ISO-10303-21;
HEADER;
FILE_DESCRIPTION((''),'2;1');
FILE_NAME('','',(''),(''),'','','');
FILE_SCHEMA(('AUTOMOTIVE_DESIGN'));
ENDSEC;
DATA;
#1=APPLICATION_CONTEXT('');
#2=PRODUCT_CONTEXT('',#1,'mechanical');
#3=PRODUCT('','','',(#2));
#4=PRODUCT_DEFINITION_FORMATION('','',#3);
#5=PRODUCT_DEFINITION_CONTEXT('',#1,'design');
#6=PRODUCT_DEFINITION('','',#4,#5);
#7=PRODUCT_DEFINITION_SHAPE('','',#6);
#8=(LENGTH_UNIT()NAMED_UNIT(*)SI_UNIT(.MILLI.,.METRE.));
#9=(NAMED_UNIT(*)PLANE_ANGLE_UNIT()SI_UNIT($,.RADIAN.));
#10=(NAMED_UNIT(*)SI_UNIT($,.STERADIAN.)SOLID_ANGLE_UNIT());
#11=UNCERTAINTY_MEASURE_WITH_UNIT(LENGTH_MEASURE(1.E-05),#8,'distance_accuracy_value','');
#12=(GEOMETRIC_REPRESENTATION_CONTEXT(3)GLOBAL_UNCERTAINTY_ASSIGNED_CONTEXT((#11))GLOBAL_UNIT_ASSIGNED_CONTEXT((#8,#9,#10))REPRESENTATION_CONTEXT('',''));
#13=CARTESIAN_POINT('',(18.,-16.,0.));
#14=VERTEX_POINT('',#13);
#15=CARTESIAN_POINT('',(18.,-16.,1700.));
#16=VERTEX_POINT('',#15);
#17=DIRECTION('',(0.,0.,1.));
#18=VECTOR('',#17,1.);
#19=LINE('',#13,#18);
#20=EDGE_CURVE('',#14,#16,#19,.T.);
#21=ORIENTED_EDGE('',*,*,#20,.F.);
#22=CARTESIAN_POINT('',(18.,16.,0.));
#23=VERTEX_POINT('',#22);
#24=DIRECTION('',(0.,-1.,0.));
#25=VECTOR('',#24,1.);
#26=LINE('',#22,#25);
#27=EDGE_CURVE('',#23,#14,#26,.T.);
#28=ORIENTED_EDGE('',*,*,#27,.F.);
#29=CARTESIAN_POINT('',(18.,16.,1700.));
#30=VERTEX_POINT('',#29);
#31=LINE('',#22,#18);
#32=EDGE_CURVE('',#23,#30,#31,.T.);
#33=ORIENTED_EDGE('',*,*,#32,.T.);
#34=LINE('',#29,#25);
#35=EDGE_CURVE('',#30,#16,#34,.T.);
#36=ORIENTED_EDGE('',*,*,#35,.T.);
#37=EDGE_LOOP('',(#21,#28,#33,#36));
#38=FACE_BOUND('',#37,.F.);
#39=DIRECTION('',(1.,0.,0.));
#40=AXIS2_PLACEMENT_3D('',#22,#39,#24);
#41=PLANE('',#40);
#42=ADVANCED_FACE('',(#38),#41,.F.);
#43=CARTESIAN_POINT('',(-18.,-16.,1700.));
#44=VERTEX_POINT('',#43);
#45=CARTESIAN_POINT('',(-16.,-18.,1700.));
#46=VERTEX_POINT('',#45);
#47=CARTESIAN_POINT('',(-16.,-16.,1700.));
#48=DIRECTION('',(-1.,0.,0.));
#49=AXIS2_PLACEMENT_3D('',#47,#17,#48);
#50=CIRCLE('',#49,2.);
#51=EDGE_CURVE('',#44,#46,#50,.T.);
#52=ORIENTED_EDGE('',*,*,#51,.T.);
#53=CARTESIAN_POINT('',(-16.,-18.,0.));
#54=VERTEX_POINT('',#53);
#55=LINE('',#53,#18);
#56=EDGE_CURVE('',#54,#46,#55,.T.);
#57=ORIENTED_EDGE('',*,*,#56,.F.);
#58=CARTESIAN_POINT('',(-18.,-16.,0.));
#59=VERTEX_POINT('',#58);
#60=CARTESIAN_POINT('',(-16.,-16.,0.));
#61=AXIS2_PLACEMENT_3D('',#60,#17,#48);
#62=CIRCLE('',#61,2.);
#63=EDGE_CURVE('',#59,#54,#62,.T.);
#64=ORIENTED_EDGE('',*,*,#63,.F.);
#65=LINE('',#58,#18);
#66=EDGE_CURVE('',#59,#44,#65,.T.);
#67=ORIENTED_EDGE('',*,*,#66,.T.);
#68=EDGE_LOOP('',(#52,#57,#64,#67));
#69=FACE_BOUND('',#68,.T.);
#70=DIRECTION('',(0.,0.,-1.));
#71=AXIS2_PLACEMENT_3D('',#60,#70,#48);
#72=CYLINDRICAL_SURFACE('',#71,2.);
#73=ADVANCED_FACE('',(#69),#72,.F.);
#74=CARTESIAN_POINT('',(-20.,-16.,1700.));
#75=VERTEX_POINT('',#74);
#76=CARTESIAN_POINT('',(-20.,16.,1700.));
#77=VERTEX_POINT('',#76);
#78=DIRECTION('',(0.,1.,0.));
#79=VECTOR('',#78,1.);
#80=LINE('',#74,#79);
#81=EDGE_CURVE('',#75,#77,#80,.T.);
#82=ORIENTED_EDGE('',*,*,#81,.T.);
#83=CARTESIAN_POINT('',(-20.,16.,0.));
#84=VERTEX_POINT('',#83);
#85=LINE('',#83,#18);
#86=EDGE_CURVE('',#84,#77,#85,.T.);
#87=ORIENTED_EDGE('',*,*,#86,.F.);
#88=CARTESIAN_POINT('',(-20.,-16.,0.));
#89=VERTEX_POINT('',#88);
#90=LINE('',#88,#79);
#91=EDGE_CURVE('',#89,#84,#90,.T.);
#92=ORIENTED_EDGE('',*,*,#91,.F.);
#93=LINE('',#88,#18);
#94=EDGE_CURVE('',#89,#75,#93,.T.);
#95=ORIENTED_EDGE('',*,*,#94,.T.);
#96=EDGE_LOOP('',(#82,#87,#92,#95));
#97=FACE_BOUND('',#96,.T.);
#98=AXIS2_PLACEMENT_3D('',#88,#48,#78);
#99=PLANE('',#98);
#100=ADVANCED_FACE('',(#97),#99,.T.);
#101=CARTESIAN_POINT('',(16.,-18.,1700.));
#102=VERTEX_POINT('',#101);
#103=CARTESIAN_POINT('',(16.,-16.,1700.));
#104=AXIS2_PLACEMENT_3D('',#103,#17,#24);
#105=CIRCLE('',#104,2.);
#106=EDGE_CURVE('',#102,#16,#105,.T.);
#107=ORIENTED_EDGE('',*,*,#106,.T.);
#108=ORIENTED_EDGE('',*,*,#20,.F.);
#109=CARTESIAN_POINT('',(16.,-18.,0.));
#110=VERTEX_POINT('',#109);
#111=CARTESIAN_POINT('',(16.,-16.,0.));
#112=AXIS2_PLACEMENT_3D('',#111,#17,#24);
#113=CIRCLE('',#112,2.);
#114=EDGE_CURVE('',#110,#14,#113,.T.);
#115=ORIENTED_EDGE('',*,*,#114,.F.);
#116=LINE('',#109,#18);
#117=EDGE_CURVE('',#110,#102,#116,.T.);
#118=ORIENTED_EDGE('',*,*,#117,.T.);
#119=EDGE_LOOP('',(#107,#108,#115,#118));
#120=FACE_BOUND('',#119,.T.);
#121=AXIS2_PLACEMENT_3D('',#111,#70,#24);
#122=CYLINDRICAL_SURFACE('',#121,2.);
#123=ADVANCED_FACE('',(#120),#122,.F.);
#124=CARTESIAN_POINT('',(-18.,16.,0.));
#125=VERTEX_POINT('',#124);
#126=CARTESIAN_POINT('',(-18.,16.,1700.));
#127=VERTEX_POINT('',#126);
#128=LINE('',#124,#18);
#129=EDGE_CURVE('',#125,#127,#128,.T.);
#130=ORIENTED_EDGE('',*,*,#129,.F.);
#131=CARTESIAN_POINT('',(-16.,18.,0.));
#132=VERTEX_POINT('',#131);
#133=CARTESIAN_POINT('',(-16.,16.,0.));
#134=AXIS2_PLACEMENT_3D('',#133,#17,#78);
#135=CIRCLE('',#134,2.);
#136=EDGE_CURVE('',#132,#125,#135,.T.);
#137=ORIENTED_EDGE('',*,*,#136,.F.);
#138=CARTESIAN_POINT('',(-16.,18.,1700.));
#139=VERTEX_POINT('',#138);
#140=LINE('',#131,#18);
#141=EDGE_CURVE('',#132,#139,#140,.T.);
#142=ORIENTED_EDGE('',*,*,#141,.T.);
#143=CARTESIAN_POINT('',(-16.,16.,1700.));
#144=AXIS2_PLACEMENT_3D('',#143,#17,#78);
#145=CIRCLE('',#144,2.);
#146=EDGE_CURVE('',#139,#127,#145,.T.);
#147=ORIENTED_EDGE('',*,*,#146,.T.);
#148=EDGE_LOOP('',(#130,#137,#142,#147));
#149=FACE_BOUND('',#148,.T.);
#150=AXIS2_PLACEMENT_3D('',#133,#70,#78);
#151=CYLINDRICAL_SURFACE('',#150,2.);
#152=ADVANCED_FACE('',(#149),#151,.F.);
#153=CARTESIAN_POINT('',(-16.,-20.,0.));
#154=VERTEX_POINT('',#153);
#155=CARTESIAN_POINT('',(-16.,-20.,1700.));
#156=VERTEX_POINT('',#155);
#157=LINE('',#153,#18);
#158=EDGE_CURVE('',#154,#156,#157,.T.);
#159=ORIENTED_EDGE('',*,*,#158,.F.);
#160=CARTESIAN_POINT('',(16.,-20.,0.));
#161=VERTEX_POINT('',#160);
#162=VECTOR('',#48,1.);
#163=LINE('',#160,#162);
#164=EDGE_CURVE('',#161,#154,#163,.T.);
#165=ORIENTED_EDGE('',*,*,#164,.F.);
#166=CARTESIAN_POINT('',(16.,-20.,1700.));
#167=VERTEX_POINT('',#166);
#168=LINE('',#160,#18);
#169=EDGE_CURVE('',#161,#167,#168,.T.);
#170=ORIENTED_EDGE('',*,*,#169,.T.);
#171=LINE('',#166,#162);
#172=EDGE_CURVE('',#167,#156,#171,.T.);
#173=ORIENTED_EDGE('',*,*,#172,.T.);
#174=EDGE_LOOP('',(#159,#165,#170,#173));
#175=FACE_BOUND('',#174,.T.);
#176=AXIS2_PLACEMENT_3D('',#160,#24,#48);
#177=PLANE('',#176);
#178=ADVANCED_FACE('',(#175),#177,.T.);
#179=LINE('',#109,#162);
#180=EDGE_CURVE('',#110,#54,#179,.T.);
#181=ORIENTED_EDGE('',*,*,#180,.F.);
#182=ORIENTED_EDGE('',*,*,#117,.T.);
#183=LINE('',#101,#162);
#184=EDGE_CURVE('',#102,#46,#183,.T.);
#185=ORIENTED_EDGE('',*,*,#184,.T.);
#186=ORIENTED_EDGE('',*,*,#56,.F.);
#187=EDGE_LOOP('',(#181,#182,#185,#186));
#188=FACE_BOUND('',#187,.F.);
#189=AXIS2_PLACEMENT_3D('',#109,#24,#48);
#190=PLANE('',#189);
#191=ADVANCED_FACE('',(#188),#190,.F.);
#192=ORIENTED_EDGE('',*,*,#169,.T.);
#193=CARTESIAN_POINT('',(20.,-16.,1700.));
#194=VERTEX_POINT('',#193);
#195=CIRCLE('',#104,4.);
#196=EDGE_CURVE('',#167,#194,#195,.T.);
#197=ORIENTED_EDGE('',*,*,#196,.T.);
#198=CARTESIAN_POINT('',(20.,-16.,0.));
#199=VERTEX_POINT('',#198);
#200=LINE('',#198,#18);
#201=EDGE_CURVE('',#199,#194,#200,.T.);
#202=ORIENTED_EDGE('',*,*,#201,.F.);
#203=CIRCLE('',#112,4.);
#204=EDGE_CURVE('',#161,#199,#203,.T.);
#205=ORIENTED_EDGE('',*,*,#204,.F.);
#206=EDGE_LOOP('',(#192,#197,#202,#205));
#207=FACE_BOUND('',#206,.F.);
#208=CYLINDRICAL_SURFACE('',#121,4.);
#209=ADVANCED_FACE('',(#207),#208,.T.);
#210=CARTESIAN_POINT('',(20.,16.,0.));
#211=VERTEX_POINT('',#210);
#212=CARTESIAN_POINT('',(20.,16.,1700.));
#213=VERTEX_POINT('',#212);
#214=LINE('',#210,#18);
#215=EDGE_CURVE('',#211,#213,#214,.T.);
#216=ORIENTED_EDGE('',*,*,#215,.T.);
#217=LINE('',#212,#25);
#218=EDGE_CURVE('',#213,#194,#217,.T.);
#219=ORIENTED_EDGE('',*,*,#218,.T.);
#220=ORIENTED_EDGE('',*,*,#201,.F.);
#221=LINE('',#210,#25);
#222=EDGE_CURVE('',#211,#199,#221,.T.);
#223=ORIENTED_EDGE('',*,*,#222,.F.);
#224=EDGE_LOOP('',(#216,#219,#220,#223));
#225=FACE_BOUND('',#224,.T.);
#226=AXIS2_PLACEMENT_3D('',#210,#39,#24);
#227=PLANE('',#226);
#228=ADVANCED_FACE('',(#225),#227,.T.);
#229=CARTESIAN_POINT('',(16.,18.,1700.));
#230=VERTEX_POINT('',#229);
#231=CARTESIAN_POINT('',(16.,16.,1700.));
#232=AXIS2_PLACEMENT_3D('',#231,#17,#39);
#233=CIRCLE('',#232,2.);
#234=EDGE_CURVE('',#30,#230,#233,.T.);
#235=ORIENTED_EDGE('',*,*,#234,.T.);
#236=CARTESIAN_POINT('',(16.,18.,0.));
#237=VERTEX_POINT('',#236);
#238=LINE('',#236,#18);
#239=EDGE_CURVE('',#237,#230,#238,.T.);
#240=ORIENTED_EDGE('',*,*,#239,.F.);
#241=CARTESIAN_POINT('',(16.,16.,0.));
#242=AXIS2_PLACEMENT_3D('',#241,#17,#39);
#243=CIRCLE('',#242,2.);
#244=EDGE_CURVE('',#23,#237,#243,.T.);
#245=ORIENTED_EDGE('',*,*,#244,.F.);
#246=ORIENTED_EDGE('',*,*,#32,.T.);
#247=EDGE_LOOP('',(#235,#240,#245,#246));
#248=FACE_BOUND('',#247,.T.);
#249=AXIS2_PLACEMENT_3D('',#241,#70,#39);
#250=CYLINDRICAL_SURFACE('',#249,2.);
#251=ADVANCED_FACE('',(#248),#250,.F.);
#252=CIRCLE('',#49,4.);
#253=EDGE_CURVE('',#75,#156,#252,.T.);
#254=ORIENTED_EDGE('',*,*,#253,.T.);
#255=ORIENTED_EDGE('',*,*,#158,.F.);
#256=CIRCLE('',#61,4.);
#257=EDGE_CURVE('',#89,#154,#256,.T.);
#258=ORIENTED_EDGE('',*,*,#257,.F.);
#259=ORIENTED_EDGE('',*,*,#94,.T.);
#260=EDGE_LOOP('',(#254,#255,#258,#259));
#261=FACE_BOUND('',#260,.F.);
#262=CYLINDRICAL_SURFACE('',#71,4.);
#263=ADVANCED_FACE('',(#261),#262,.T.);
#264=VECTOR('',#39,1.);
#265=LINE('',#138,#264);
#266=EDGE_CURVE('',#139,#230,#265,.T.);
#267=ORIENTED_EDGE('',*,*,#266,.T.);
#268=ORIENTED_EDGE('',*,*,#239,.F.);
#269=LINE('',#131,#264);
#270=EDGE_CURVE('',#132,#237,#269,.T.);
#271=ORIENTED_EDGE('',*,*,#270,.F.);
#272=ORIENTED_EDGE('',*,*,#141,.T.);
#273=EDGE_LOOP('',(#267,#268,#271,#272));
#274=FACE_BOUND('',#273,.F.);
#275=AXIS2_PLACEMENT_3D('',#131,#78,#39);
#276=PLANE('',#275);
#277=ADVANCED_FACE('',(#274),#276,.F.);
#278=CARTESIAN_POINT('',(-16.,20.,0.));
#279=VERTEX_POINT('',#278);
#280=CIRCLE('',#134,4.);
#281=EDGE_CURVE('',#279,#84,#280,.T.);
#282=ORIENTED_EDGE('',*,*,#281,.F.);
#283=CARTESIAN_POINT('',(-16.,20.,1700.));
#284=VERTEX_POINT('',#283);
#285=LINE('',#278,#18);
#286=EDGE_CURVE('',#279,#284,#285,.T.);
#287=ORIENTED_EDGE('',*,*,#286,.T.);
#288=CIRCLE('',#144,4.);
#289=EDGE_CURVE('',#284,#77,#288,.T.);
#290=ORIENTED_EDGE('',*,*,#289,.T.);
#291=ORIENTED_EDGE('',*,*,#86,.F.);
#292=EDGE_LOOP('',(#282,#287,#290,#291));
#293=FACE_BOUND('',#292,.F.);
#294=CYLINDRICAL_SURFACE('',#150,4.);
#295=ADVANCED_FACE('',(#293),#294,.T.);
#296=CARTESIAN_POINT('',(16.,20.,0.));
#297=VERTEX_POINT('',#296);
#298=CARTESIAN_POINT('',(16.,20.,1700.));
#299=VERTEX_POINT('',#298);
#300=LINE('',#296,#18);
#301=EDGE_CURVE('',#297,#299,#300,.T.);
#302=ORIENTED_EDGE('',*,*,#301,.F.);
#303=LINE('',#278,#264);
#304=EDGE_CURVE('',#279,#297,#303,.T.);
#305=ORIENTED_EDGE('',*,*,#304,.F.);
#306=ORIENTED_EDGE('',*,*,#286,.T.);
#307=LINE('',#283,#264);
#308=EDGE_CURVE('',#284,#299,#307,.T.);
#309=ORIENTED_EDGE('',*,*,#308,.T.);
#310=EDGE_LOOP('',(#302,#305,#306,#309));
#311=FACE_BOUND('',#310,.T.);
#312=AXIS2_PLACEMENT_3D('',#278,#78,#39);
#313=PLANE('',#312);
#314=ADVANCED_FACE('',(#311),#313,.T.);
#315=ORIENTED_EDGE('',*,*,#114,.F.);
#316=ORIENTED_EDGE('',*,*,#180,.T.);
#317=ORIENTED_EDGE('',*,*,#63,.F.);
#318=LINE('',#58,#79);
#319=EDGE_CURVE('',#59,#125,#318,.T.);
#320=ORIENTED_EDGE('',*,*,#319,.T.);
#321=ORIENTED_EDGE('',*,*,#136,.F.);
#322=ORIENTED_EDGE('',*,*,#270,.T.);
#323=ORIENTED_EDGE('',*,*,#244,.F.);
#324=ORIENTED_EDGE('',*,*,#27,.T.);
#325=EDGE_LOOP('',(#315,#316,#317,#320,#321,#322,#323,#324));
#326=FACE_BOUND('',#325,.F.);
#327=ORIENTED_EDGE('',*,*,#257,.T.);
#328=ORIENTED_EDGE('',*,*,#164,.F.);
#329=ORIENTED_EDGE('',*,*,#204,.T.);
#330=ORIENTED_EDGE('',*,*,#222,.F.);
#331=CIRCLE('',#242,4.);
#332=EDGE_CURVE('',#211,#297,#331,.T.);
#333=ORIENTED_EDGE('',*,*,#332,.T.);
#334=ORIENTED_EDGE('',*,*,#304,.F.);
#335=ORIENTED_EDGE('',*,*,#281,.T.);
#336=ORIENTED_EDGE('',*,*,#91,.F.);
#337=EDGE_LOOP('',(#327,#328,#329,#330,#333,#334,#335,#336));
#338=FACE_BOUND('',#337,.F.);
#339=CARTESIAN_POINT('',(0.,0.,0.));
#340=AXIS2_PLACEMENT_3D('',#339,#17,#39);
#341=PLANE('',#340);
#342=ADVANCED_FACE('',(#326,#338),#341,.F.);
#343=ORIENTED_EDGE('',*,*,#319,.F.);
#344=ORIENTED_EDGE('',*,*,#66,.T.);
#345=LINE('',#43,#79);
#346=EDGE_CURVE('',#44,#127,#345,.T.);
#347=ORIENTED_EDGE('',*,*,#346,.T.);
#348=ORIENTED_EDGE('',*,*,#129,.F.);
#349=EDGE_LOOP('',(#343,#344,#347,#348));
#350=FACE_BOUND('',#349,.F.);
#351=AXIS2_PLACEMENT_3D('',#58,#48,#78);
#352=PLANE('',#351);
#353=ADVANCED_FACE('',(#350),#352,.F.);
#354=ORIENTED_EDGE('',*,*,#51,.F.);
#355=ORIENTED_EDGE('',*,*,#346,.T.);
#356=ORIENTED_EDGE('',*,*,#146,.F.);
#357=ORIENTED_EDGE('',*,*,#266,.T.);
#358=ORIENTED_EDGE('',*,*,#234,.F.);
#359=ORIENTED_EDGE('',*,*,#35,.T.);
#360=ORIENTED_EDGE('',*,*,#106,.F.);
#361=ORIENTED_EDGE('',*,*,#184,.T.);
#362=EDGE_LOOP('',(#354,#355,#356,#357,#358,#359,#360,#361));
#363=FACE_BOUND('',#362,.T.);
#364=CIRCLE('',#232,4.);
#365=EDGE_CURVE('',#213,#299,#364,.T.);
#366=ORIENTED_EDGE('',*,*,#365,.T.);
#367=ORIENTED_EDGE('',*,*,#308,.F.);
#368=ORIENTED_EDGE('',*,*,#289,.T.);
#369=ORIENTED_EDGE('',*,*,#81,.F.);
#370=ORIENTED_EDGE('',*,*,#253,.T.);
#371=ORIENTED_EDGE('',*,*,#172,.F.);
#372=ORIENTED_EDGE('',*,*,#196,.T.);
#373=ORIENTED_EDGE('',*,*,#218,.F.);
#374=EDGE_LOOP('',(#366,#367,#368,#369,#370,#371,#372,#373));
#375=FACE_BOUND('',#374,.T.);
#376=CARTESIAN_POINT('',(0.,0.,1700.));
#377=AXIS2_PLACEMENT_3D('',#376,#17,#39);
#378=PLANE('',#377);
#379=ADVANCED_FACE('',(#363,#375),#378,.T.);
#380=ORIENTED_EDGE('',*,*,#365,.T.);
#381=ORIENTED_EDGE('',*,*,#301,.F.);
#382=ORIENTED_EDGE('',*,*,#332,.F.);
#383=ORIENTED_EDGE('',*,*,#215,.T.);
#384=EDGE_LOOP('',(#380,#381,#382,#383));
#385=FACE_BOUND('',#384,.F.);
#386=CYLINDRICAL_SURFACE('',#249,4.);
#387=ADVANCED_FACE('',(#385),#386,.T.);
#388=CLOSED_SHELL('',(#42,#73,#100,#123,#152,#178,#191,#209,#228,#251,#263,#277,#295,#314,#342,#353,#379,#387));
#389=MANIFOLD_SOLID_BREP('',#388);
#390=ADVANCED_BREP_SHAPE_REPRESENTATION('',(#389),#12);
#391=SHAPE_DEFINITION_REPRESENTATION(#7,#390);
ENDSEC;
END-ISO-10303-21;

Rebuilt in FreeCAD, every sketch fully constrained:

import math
import FreeCAD as App
import Part
import Sketcher
Q = App.Units.Quantity

doc = App.newDocument("Part")
body = doc.addObject("PartDesign::Body", "Body")

sketch1 = body.newObject("Sketcher::SketchObject", "Sketch")
sketch1.AttachmentSupport = (doc.getObject("XY_Plane"), [""])
sketch1.MapMode = "FlatFace"
sketch1.addGeometry([
    Part.LineSegment(App.Vector(-20, 16, 0), App.Vector(-20, -16, 0)),
    Part.ArcOfCircle(Part.Circle(App.Vector(-16, -16, 0), App.Vector(0, 0, 1), 4), math.radians(180), math.radians(270)),
    Part.LineSegment(App.Vector(-16, -20, 0), App.Vector(16, -20, 0)),
    Part.ArcOfCircle(Part.Circle(App.Vector(16, -16, 0), App.Vector(0, 0, 1), 4), math.radians(-90), math.radians(0)),
    Part.LineSegment(App.Vector(20, -16, 0), App.Vector(20, 16, 0)),
    Part.ArcOfCircle(Part.Circle(App.Vector(16, 16, 0), App.Vector(0, 0, 1), 4), math.radians(0), math.radians(90)),
    Part.LineSegment(App.Vector(16, 20, 0), App.Vector(-16, 20, 0)),
    Part.ArcOfCircle(Part.Circle(App.Vector(-16, 16, 0), App.Vector(0, 0, 1), 4), math.radians(90), math.radians(180)),
    Part.ArcOfCircle(Part.Circle(App.Vector(-16, 16, 0), App.Vector(0, 0, 1), 2), math.radians(90), math.radians(180)),
    Part.LineSegment(App.Vector(-16, 18, 0), App.Vector(16, 18, 0)),
    Part.ArcOfCircle(Part.Circle(App.Vector(16, 16, 0), App.Vector(0, 0, 1), 2), math.radians(0), math.radians(90)),
    Part.LineSegment(App.Vector(18, 16, 0), App.Vector(18, -16, 0)),
    Part.ArcOfCircle(Part.Circle(App.Vector(16, -16, 0), App.Vector(0, 0, 1), 2), math.radians(-90), math.radians(0)),
    Part.LineSegment(App.Vector(16, -18, 0), App.Vector(-16, -18, 0)),
    Part.ArcOfCircle(Part.Circle(App.Vector(-16, -16, 0), App.Vector(0, 0, 1), 2), math.radians(180), math.radians(270)),
    Part.LineSegment(App.Vector(-18, -16, 0), App.Vector(-18, 16, 0)),
], False)
sketch1.addConstraint([
    Sketcher.Constraint("Tangent", 0, 2, 1, 1),
    Sketcher.Constraint("Tangent", 1, 2, 2, 1),
    Sketcher.Constraint("Tangent", 2, 2, 3, 1),
    Sketcher.Constraint("Tangent", 3, 2, 4, 1),
    Sketcher.Constraint("Tangent", 4, 2, 5, 1),
    Sketcher.Constraint("Tangent", 5, 2, 6, 1),
    Sketcher.Constraint("Tangent", 6, 2, 7, 1),
    Sketcher.Constraint("Tangent", 7, 2, 0, 1),
    Sketcher.Constraint("Tangent", 8, 1, 9, 1),
    Sketcher.Constraint("Tangent", 9, 2, 10, 2),
    Sketcher.Constraint("Tangent", 10, 1, 11, 1),
    Sketcher.Constraint("Tangent", 11, 2, 12, 2),
    Sketcher.Constraint("Tangent", 12, 1, 13, 1),
    Sketcher.Constraint("Tangent", 13, 2, 14, 2),
    Sketcher.Constraint("Tangent", 14, 1, 15, 1),
    Sketcher.Constraint("Tangent", 15, 2, 8, 2),
    Sketcher.Constraint("Vertical", 0),
    Sketcher.Constraint("Horizontal", 2),
    Sketcher.Constraint("Vertical", 4),
    Sketcher.Constraint("Horizontal", 6),
    Sketcher.Constraint("Horizontal", 9),
    Sketcher.Constraint("Vertical", 11),
    Sketcher.Constraint("Horizontal", 13),
    Sketcher.Constraint("Vertical", 15),
    Sketcher.Constraint("Coincident", 8, 3, 7, 3),
    Sketcher.Constraint("Coincident", 10, 3, 5, 3),
    Sketcher.Constraint("Coincident", 12, 3, 3, 3),
    Sketcher.Constraint("Equal", 1, 3),
    Sketcher.Constraint("Equal", 3, 5),
    Sketcher.Constraint("Equal", 5, 7),
    Sketcher.Constraint("Equal", 12, 14),
    Sketcher.Constraint("Symmetric", 1, 3, 5, 3, -1, 1),
    Sketcher.Constraint("Equal", 13, 0),
    Sketcher.Constraint("Radius", 1, Q("4 mm")),
    Sketcher.Constraint("Radius", 8, Q("2 mm")),
    Sketcher.Constraint("DistanceX", 0, 2, -1, 1, Q("20 mm")),
])
pad1 = body.newObject("PartDesign::Pad", "Pad")
pad1.Profile = sketch1
pad1.Length = 1700

doc.recompute()
